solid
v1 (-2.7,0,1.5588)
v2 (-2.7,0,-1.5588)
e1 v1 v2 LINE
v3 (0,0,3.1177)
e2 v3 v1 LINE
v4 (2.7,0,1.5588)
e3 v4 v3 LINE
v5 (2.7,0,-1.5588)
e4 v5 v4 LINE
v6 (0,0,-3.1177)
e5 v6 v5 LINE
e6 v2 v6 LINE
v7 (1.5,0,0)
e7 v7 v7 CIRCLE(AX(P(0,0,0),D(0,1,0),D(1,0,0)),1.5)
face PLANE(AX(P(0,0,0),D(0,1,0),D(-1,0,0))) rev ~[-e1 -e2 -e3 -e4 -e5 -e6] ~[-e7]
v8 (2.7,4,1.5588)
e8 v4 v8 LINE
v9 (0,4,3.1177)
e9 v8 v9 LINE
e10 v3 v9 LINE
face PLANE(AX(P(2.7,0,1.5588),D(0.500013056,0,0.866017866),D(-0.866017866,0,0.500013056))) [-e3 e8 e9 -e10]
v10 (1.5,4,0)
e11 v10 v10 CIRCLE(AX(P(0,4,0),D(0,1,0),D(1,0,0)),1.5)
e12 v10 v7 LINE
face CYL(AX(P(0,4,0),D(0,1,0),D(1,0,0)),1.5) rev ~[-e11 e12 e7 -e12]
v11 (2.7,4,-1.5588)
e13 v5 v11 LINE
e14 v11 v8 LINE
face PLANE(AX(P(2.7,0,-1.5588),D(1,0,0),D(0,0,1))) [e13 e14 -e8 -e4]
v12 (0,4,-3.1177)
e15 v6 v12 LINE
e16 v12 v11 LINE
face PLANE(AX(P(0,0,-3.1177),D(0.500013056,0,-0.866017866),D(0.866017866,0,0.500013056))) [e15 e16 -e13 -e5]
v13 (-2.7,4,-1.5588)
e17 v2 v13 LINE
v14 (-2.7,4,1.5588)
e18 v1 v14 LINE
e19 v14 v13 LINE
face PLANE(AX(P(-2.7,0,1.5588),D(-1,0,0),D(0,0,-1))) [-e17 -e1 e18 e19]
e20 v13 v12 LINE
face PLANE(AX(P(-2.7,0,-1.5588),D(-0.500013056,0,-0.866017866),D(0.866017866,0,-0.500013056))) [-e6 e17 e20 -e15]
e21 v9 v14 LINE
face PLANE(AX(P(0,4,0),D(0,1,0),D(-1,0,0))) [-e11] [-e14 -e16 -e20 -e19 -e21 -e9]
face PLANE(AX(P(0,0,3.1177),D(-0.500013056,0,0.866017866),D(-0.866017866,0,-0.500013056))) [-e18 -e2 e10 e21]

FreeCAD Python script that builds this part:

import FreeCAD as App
import Part
import Sketcher

V = App.Vector
Q = App.Units.Quantity


def add_polygon(sketch, points):
    """Adds a closed chain of lines whose ends are joined by coincident constraints."""
    first, n = sketch.GeometryCount, len(points)
    for a, b in zip(points, points[1:] + points[:1]):
        sketch.addGeometry(Part.LineSegment(App.Vector(*a, 0), App.Vector(*b, 0)), False)
    for i in range(n):
        sketch.addConstraint(Sketcher.Constraint("Coincident", first + i, 2, first + (i + 1) % n, 1))

doc = App.newDocument("Part")
body = doc.addObject("PartDesign::Body", "Body")

# Sketch on XZ plane
sketch1 = body.newObject("Sketcher::SketchObject", "Sketch")
sketch1.AttachmentSupport = (doc.getObject("XZ_Plane"), [""])
sketch1.MapMode = "FlatFace"
add_polygon(sketch1, [(2.7, -1.6), (0, -3.1), (-2.7, -1.6), (-2.7, 1.6), (0, 3.1), (2.7, 1.6)])  # lines 0-5
sketch1.addConstraint(Sketcher.Constraint("Vertical", 2))
sketch1.addConstraint(Sketcher.Constraint("Vertical", 5))
sketch1.addConstraint(Sketcher.Constraint("Symmetric", 0, 2, 3, 2, -1, 1))
sketch1.addConstraint(Sketcher.Constraint("Symmetric", 1, 2, 4, 2, -1, 1))
sketch1.addConstraint(Sketcher.Constraint("PointOnObject", 0, 2, -2))
sketch1.addConstraint(Sketcher.Constraint("Parallel", 0, 3))
sketch1.addConstraint(Sketcher.Constraint("Horizontal", 2, 2, 4, 2))
sketch1.addConstraint(Sketcher.Constraint("DistanceX", 2, 2, 4, 2, Q("5.4 mm")))
sketch1.addConstraint(Sketcher.Constraint("Angle", 0, Q("-149.9991 deg")))
sketch1.addConstraint(Sketcher.Constraint("DistanceY", 2, 1, 2, 2, Q("3.1176 mm")))
pad1 = body.newObject("PartDesign::Pad", "Pad")
pad1.Profile = sketch1
pad1.Length = 4
pad1.Reversed = True

# Sketch on XZ plane
sketch2 = body.newObject("Sketcher::SketchObject", "Sketch001")
sketch2.AttachmentSupport = (doc.getObject("XZ_Plane"), [""])
sketch2.MapMode = "FlatFace"
sketch2.AttachmentOffset = App.Placement(V(0, 0, -4), App.Rotation())
sketch2.addGeometry(Part.Circle(V(0, 0, 0), V(0, 0, 1), 1.5), False)
sketch2.addConstraint(Sketcher.Constraint("Coincident", 0, 3, -1, 1))
sketch2.addConstraint(Sketcher.Constraint("Diameter", 0, Q("3 mm")))
pocket1 = body.newObject("PartDesign::Pocket", "Pocket")
pocket1.Profile = sketch2
pocket1.Length = 4
pocket1.Reversed = True

doc.recompute()
